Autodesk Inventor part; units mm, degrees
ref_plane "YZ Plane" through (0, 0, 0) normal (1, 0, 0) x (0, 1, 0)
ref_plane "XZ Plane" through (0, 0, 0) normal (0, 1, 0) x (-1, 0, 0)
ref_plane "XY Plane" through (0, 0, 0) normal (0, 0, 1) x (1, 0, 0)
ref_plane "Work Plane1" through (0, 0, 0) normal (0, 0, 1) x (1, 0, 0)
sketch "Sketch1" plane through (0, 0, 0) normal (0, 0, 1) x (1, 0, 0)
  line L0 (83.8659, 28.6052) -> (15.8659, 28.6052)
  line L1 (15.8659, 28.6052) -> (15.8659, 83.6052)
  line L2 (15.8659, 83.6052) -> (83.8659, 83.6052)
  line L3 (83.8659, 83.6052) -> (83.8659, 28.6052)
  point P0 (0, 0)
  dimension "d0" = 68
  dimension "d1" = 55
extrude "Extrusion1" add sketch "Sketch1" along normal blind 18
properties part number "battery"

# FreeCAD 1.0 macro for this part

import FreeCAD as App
import Part
import Sketcher
from FreeCAD import Vector
Q = App.Units.Quantity


def add_polygon(sketch, points):
    """Adds a closed chain of lines whose ends are joined by coincident constraints."""
    first, n = sketch.GeometryCount, len(points)
    for a, b in zip(points, points[1:] + points[:1]):
        sketch.addGeometry(Part.LineSegment(App.Vector(*a, 0), App.Vector(*b, 0)), False)
    for i in range(n):
        sketch.addConstraint(Sketcher.Constraint("Coincident", first + i, 2, first + (i + 1) % n, 1))

doc = App.newDocument("Part")
body = doc.addObject("PartDesign::Body", "Body")

# Sketch on XY plane
sketch1 = doc.addObject("Sketcher::SketchObject", "Sketch")
body.addObject(sketch1)
sketch1.AttachmentSupport = (doc.XY_Plane, [""])
sketch1.MapMode = "FlatFace"
add_polygon(sketch1, [(16, 29), (84, 29), (84, 84), (16, 84)])  # lines 0-3
sketch1.addConstraint([
    Sketcher.Constraint("Horizontal", 0),
    Sketcher.Constraint("Vertical", 1),
    Sketcher.Constraint("Horizontal", 2),
    Sketcher.Constraint("Vertical", 3),
    Sketcher.Constraint("DistanceX", 0, 1, 0, 2, Q("68 mm")),
    Sketcher.Constraint("DistanceY", 1, 1, 1, 2, Q("55 mm")),
    Sketcher.Constraint("DistanceX", -1, 1, 0, 2, Q("83.866 mm")),
    Sketcher.Constraint("DistanceY", -1, 1, 0, 2, Q("28.6052 mm")),
])
pad1 = doc.addObject("PartDesign::Pad", "Pad")
body.addObject(pad1)
pad1.Profile = sketch1
pad1.Length = 18

doc.recompute()
